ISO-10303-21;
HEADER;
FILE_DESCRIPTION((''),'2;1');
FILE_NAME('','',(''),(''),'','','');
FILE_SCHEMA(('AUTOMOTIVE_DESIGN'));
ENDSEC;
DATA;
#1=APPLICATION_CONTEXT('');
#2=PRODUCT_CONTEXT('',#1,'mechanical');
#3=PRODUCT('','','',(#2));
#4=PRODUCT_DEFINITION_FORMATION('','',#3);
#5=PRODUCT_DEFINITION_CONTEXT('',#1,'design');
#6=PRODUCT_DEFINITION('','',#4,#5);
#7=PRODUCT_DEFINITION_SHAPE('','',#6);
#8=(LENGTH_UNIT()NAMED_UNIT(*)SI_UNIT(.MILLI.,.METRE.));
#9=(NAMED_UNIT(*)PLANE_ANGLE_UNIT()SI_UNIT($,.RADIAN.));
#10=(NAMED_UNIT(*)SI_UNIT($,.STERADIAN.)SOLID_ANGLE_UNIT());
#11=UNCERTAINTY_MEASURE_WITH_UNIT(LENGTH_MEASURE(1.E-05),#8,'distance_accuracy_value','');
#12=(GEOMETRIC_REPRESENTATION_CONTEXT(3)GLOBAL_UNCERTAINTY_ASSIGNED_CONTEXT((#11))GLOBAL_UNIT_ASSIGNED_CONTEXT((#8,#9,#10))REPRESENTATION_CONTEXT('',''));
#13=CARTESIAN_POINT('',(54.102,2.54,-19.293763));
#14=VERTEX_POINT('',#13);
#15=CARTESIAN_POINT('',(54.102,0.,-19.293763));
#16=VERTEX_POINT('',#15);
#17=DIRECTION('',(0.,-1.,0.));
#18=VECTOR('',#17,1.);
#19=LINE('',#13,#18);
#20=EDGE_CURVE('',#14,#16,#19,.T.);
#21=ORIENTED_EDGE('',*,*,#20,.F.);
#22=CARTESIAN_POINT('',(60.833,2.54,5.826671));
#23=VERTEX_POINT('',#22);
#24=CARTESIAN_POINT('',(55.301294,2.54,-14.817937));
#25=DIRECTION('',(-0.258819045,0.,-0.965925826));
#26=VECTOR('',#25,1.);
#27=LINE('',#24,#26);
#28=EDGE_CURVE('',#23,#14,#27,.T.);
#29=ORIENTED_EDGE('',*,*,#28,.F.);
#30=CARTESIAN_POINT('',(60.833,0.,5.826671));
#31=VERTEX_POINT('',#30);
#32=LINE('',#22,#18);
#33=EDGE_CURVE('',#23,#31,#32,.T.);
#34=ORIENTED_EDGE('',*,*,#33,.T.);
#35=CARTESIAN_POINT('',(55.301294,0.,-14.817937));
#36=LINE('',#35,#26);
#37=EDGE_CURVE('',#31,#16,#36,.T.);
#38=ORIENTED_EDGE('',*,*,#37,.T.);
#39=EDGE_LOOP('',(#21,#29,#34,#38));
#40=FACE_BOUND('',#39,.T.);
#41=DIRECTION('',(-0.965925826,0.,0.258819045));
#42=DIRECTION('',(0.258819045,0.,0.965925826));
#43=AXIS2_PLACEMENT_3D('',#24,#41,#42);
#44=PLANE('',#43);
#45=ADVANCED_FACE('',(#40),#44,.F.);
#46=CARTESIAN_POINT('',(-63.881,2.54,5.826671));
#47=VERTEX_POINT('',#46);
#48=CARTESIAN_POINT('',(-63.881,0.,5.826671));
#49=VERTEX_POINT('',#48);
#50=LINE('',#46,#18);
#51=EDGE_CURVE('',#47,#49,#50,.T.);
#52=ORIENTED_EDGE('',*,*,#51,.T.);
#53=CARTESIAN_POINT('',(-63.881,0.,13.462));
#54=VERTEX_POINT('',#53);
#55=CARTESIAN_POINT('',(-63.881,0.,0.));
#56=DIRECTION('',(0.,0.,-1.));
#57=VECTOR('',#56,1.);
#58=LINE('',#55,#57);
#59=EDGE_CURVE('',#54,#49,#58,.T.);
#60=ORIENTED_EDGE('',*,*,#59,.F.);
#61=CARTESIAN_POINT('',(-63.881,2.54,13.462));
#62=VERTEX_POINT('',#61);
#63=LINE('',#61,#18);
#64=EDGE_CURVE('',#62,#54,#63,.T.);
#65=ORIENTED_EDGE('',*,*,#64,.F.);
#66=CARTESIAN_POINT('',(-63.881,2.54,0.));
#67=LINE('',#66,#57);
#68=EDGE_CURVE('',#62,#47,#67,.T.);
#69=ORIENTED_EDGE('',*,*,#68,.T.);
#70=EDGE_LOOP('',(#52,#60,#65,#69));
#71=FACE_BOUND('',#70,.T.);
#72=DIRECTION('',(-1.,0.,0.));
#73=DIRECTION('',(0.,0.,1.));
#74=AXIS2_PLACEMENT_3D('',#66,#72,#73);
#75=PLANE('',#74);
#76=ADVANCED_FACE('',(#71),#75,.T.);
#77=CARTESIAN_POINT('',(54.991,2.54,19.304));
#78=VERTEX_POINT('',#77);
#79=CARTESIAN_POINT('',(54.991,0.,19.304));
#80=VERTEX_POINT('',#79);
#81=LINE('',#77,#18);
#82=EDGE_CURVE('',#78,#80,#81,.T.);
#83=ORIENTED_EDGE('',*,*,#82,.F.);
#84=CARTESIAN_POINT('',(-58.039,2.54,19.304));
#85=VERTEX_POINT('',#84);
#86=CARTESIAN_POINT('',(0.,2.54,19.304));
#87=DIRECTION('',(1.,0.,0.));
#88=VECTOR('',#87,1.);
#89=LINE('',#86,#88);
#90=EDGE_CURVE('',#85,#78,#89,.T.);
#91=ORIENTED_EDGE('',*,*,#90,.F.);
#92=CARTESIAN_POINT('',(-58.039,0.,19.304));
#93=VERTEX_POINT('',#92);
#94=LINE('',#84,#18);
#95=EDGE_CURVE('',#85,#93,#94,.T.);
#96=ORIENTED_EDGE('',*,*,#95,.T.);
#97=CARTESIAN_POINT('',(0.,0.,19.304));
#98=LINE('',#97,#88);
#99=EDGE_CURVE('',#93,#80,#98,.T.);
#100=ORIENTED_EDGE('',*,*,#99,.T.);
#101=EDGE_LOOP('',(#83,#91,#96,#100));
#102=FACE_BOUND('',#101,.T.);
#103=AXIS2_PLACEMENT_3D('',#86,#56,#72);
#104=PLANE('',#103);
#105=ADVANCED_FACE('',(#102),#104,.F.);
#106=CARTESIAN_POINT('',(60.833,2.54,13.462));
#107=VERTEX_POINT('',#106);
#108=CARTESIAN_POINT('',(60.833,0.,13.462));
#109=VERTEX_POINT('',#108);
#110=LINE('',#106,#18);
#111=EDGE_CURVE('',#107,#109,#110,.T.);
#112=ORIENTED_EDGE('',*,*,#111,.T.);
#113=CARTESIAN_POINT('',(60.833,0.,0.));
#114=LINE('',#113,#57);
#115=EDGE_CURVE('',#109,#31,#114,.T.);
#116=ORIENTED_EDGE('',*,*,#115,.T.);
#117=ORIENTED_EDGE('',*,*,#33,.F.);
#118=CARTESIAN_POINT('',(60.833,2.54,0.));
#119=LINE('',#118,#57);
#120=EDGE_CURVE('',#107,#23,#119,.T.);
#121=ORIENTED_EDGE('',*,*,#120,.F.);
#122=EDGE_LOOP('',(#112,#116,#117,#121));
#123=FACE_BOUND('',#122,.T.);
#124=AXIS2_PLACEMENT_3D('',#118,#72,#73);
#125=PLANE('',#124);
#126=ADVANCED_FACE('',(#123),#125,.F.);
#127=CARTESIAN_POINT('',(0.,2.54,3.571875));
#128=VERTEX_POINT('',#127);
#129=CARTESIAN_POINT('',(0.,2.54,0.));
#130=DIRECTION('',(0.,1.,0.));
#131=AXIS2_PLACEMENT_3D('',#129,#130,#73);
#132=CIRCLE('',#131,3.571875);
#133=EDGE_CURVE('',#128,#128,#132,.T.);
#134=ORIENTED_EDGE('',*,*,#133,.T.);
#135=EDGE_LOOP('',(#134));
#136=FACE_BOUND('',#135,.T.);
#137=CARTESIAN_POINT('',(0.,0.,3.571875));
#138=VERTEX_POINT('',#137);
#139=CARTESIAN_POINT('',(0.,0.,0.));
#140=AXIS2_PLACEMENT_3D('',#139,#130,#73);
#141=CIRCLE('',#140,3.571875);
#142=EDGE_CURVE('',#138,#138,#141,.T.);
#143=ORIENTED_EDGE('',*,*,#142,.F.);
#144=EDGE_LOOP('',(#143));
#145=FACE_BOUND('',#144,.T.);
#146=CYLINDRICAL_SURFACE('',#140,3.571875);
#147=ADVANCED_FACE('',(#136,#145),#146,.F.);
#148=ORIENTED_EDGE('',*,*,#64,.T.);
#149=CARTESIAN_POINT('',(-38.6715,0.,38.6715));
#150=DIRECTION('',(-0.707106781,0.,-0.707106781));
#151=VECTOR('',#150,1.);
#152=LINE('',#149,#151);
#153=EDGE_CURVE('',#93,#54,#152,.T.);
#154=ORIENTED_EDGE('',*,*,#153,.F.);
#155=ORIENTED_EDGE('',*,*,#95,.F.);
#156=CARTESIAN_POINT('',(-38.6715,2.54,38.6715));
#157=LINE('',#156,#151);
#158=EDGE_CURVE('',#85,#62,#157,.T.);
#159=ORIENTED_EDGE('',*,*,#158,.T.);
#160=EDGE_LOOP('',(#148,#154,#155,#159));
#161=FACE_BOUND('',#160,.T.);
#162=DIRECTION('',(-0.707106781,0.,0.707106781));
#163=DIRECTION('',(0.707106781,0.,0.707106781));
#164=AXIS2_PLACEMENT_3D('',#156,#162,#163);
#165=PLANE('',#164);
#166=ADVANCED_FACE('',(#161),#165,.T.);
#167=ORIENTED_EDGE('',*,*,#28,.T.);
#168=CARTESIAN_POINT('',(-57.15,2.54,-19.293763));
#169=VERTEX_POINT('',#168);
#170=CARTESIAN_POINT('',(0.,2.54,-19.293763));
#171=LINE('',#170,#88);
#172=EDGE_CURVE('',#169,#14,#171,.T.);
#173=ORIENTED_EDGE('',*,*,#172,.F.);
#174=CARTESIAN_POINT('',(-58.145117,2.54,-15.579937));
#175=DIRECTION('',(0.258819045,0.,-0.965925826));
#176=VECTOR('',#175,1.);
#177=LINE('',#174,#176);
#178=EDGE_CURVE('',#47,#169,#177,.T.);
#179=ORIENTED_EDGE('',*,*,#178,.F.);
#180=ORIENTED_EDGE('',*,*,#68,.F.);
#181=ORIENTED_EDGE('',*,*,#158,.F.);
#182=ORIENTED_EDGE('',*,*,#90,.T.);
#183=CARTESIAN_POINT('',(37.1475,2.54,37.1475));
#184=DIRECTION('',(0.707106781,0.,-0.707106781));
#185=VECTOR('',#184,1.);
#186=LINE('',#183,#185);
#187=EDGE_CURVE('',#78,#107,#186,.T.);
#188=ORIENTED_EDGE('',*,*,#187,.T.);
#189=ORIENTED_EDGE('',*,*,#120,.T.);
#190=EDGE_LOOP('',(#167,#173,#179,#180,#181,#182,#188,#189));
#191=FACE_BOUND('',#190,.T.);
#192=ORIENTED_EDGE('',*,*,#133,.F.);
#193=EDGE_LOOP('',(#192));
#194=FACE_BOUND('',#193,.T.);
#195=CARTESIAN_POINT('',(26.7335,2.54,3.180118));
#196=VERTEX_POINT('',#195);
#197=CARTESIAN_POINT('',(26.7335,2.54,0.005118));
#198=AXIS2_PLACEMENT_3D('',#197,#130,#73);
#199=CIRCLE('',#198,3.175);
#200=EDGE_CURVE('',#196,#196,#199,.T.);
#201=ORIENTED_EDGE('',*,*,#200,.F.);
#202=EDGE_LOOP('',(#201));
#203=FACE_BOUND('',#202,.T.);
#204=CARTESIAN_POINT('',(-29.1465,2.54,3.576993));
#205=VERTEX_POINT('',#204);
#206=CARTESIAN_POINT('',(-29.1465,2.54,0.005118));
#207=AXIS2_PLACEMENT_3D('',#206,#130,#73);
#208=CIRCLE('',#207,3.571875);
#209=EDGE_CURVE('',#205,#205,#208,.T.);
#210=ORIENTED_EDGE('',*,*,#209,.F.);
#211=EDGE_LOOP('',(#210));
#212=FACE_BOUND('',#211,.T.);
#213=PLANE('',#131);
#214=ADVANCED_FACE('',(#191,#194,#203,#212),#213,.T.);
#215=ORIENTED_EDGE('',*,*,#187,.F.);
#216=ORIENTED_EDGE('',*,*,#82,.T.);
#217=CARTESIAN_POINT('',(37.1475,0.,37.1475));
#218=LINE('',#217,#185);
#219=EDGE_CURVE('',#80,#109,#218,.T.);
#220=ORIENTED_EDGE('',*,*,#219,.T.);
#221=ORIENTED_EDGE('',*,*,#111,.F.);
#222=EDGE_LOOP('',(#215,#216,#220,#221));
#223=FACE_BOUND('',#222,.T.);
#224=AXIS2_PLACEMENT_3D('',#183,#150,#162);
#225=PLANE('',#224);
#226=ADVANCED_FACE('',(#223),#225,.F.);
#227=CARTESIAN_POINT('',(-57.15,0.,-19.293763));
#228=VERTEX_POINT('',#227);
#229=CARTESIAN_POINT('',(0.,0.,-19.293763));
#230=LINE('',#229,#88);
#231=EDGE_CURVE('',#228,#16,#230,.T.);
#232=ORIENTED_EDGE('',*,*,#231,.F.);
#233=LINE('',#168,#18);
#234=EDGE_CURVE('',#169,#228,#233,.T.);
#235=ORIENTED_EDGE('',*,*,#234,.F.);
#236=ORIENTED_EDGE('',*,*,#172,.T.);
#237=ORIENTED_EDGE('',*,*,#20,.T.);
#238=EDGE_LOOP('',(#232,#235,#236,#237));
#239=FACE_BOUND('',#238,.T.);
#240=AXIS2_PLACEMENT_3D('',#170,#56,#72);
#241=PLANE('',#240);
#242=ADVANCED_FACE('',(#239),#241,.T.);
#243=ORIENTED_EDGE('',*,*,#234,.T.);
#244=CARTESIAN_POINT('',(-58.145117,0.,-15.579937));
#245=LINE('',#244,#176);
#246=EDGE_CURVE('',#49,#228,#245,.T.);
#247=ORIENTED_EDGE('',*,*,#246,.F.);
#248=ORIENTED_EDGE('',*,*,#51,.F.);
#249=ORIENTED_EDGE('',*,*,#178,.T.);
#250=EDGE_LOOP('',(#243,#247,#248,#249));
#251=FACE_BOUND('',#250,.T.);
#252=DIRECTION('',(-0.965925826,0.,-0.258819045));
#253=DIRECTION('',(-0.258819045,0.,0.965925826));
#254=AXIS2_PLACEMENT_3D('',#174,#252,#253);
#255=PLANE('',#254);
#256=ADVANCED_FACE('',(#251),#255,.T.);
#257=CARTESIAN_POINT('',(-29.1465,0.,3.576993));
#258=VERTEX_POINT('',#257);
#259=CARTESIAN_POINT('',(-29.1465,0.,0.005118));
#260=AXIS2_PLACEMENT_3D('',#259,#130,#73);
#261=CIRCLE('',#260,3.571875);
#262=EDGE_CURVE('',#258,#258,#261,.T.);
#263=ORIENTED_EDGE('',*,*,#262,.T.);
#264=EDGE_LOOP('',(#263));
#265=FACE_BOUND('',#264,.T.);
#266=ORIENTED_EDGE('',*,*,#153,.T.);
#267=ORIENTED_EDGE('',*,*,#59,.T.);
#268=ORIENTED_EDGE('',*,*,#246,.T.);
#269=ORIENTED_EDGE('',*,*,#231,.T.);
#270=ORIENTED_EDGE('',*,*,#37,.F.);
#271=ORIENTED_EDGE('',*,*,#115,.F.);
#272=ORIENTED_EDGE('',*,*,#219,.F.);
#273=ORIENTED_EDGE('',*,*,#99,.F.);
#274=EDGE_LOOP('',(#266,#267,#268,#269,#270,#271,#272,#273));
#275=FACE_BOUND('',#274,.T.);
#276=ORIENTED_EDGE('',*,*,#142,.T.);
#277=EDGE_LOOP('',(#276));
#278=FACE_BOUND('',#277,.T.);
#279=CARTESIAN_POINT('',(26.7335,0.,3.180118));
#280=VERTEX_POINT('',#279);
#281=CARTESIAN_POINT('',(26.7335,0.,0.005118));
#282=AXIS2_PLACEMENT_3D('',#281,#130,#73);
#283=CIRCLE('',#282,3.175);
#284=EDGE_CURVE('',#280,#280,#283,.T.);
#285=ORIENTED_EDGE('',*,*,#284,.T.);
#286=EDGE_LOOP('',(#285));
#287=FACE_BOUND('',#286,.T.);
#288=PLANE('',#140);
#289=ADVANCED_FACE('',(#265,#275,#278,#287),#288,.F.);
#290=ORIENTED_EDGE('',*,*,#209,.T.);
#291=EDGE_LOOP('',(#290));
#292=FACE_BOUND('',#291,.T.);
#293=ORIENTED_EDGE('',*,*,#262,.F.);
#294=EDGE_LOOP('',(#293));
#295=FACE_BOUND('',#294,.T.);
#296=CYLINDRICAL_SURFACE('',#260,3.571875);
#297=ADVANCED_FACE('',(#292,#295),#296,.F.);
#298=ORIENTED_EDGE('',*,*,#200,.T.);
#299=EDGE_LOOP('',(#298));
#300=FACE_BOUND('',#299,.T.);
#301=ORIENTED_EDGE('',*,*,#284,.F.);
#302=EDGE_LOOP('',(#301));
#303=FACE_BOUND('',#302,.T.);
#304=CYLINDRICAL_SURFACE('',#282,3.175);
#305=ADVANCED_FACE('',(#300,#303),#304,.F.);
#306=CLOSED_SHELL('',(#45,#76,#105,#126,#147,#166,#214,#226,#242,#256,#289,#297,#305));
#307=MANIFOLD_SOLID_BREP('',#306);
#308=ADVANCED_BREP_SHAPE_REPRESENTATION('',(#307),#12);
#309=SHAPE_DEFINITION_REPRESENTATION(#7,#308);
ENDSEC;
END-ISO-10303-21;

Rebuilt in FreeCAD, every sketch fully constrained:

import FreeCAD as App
import Part
import Sketcher
Q = App.Units.Quantity

doc = App.newDocument("Part")
params = doc.addObject("Spreadsheet::Sheet", "Params")
for row, (alias, value) in enumerate([
    ("sketch1_width", "4.38 in"),
    ("sketch1_width2", "4.45 in"),
    ("pad1_length", "0.1 in"),
    ("sketch2_diameter", "0.25 in"),
    ("sketch2_diameter2", "0.28125 in"),
], start=1):
    params.set(f"A{row}", alias)
    params.set(f"B{row}", "=" + value)
    params.setAlias(f"B{row}", alias)

body = doc.addObject("PartDesign::Body", "Body")

# Sketch on XZ plane
sketch1 = body.newObject("Sketcher::SketchObject", "Sketch")
sketch1.AttachmentSupport = (doc.getObject("XZ_Plane"), [""])
sketch1.MapMode = "FlatFace"
sketch1.addGeometry(Part.LineSegment(App.Vector(55, 19, 0), App.Vector(61, 13, 0)), False)
sketch1.addGeometry(Part.LineSegment(App.Vector(61, 13, 0), App.Vector(61, 6, 0)), False)
sketch1.addGeometry(Part.LineSegment(App.Vector(61, 6, 0), App.Vector(54, -19, 0)), False)
sketch1.addGeometry(Part.LineSegment(App.Vector(54, -19, 0), App.Vector(-57, -19, 0)), False)
sketch1.addGeometry(Part.LineSegment(App.Vector(-57, -19, 0), App.Vector(-64, 6, 0)), False)
sketch1.addGeometry(Part.LineSegment(App.Vector(-64, 6, 0), App.Vector(-64, 13, 0)), False)
sketch1.addGeometry(Part.LineSegment(App.Vector(-64, 13, 0), App.Vector(-58, 19, 0)), False)
sketch1.addGeometry(Part.LineSegment(App.Vector(-58, 19, 0), App.Vector(55, 19, 0)), False)
sketch1.addConstraint(Sketcher.Constraint("Coincident", 0, 2, 1, 1))
sketch1.addConstraint(Sketcher.Constraint("Coincident", 1, 2, 2, 1))
sketch1.addConstraint(Sketcher.Constraint("Coincident", 2, 2, 3, 1))
sketch1.addConstraint(Sketcher.Constraint("Coincident", 3, 2, 4, 1))
sketch1.addConstraint(Sketcher.Constraint("Coincident", 4, 2, 5, 1))
sketch1.addConstraint(Sketcher.Constraint("Coincident", 5, 2, 6, 1))
sketch1.addConstraint(Sketcher.Constraint("Coincident", 6, 2, 7, 1))
sketch1.addConstraint(Sketcher.Constraint("Coincident", 7, 2, 0, 1))
sketch1.addConstraint(Sketcher.Constraint("Vertical", 1))
sketch1.addConstraint(Sketcher.Constraint("Horizontal", 3))
sketch1.addConstraint(Sketcher.Constraint("Vertical", 5))
sketch1.addConstraint(Sketcher.Constraint("Horizontal", 7))
sketch1.addConstraint(Sketcher.Constraint("Perpendicular", 0, 6))
sketch1.addConstraint(Sketcher.Constraint("Horizontal", 1, 2, 4, 2))
sketch1.addConstraint(Sketcher.Constraint("Horizontal", 0, 2, 5, 2))
sketch1.addConstraint(Sketcher.Constraint("Equal", 2, 4))
sketch1.addConstraint(Sketcher.Constraint("Equal", 0, 6))
sketch1.addConstraint(Sketcher.Constraint("Angle", 2, Q("-105 deg")))
sketch1.addConstraint(Sketcher.Constraint("DistanceX", 3, 2, 3, 1, Q("4.38 in")))
sketch1.addConstraint(Sketcher.Constraint("DistanceX", 7, 1, 7, 2, Q("4.45 in")))
sketch1.addConstraint(Sketcher.Constraint("DistanceY", -1, 1, 0, 2, Q("0.53 in")))
sketch1.addConstraint(Sketcher.Constraint("DistanceX", -1, 1, 2, 2, Q("2.13 in")))
sketch1.addConstraint(Sketcher.Constraint("DistanceY", -1, 1, 6, 2, Q("0.76 in")))
sketch1.addConstraint(Sketcher.Constraint("DistanceY", 1, 2, 1, 1, 7.635329))
sketch1.setExpression("Constraints[18]", "Params.sketch1_width")
sketch1.setExpression("Constraints[19]", "Params.sketch1_width2")
pad1 = body.newObject("PartDesign::Pad", "Pad")
pad1.Profile = sketch1
pad1.setExpression("Length", "Params.pad1_length")
pad1.Reversed = True

# Sketch on XZ plane
sketch2 = body.newObject("Sketcher::SketchObject", "Sketch001")
sketch2.AttachmentSupport = (doc.getObject("XZ_Plane"), [""])
sketch2.MapMode = "FlatFace"
sketch2.AttachmentOffset = App.Placement(App.Vector(0, 0, -0.1 * 25.4), App.Rotation())
sketch2.addGeometry(Part.Circle(App.Vector(-29.1, 0, 0), App.Vector(0, 0, 1), 3.6), False)
sketch2.addGeometry(Part.Circle(App.Vector(0, 0, 0), App.Vector(0, 0, 1), 3.6), False)
sketch2.addGeometry(Part.Circle(App.Vector(26.7, 0, 0), App.Vector(0, 0, 1), 3.2), False)
sketch2.addConstraint(Sketcher.Constraint("Coincident", 1, 3, -1, 1))
sketch2.addConstraint(Sketcher.Constraint("Equal", 0, 1))
sketch2.addConstraint(Sketcher.Constraint("Horizontal", 0, 3, 2, 3))
sketch2.addConstraint(Sketcher.Constraint("Diameter", 2, Q("0.25 in")))
sketch2.addConstraint(Sketcher.Constraint("Diameter", 0, Q("0.28125 in")))
sketch2.addConstraint(Sketcher.Constraint("DistanceX", 0, 3, 2, 3, Q("2.2 in")))
sketch2.addConstraint(Sketcher.Constraint("DistanceX", 0, 3, -1, 1, Q("1.1475 in")))
sketch2.addConstraint(Sketcher.Constraint("DistanceY", -1, 1, 0, 3, 0.005118))
sketch2.setExpression("Constraints[3]", "Params.sketch2_diameter")
sketch2.setExpression("Constraints[4]", "Params.sketch2_diameter2")
pocket1 = body.newObject("PartDesign::Pocket", "Pocket")
pocket1.Profile = sketch2
pocket1.Type = "ThroughAll"
pocket1.Reversed = True

doc.recompute()
